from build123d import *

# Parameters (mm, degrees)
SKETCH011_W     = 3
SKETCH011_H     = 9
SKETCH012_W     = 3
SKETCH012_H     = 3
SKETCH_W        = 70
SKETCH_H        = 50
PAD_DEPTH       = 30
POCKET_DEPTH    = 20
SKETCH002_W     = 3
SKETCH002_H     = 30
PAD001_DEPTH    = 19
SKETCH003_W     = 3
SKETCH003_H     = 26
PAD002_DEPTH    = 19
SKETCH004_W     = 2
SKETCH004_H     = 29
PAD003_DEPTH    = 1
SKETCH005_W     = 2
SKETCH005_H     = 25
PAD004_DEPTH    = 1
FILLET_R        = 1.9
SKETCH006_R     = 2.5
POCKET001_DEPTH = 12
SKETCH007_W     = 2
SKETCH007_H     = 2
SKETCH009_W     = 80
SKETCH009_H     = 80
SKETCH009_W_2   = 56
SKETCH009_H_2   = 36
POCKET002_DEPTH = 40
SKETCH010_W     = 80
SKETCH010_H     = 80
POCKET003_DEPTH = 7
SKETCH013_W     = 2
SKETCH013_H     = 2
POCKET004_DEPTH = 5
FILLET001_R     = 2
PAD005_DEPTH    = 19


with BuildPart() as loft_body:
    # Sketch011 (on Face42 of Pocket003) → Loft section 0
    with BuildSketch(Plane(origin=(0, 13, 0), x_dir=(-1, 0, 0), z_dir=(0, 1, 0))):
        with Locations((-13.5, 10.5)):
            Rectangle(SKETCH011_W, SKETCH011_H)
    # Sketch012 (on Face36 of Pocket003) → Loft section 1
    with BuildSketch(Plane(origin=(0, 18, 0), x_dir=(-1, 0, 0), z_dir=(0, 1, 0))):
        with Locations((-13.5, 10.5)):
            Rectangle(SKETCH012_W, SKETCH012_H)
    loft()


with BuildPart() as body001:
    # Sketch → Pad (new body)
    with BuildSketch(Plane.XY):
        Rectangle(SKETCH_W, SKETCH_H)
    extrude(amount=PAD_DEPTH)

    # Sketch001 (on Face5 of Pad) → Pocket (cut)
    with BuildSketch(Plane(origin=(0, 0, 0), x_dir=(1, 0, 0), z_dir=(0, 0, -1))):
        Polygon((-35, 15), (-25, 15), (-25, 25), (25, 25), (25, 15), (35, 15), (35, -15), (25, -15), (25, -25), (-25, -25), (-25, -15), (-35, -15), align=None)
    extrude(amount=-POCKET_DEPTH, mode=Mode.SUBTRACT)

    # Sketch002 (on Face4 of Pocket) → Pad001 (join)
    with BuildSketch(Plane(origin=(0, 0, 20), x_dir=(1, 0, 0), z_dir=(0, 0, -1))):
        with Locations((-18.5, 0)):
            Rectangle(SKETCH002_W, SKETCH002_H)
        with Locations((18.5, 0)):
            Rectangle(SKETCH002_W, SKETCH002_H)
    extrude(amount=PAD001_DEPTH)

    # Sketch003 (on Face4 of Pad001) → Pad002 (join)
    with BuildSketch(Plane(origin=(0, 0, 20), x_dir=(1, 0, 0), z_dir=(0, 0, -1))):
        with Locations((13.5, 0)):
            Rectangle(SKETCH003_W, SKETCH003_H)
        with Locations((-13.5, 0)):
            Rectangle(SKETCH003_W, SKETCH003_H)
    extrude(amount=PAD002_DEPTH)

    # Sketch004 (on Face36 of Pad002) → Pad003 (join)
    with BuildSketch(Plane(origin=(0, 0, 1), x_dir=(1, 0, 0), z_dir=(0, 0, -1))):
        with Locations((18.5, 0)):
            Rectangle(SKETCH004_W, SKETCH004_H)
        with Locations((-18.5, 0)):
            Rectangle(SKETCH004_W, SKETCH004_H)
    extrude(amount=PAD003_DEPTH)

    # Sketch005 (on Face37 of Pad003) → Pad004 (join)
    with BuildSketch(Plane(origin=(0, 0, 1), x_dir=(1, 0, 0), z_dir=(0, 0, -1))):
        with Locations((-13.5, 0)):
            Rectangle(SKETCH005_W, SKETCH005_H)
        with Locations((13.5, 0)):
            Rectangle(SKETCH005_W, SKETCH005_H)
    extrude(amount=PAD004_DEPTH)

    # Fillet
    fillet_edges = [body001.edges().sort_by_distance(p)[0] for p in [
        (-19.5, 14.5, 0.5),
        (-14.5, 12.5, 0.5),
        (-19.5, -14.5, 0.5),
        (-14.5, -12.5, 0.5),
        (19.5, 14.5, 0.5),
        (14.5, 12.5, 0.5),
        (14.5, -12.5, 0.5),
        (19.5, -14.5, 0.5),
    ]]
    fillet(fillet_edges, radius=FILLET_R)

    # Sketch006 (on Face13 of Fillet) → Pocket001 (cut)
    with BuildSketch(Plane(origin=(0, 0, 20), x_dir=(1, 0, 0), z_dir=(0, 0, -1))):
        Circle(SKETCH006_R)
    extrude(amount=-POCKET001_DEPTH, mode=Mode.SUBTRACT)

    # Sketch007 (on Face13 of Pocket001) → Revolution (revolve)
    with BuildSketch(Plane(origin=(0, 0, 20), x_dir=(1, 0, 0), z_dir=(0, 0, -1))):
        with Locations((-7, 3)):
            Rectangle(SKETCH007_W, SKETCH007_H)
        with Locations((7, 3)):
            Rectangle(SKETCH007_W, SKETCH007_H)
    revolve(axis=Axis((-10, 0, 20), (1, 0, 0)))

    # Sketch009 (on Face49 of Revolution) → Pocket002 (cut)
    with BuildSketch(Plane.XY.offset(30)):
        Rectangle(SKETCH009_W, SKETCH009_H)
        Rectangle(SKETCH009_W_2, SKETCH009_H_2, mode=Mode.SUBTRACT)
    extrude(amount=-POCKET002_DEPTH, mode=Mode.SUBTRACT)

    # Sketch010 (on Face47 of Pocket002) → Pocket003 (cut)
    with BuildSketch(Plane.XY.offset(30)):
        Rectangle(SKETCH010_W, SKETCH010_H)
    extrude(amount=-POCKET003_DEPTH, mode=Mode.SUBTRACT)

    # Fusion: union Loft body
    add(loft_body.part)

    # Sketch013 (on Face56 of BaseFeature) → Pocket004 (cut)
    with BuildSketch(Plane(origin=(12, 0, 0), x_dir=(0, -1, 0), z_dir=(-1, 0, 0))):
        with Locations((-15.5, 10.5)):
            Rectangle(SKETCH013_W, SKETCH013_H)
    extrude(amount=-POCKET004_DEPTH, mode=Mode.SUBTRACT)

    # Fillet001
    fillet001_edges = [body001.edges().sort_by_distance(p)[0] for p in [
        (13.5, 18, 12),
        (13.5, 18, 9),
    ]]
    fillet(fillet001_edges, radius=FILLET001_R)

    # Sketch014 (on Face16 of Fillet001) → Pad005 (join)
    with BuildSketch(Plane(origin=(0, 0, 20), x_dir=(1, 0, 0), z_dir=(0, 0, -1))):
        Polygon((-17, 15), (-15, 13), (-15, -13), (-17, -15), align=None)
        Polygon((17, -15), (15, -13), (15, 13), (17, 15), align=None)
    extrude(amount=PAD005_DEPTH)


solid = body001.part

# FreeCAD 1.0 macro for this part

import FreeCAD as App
import Part
import Sketcher


def edges_at(feature, points):
    """Names of the edges that pass closest to the given points."""
    edges = feature.Shape.Edges
    near = lambda p: min(range(len(edges)), key=lambda i: edges[i].distToShape(Part.Vertex(*p))[0])
    return sorted({f"Edge{near(p) + 1}" for p in points})

doc = App.newDocument("Part")
body = doc.addObject("PartDesign::Body", "Body")

# Sketch on XZ plane
sketch1 = body.newObject("Sketcher::SketchObject", "Sketch")
sketch1.AttachmentSupport = (doc.getObject("XZ_Plane"), [""])
sketch1.MapMode = "FlatFace"
sketch1.AttachmentOffset = App.Placement(App.Vector(0, 0, -13), App.Rotation())
sketch1.addGeometry([
    Part.LineSegment(App.Vector(15, 15, 0), App.Vector(15, 6, 0)),
    Part.LineSegment(App.Vector(15, 6, 0), App.Vector(12, 6, 0)),
    Part.LineSegment(App.Vector(12, 6, 0), App.Vector(12, 15, 0)),
    Part.LineSegment(App.Vector(12, 15, 0), App.Vector(15, 15, 0)),
], False)
sketch1.addConstraint([
    Sketcher.Constraint("Coincident", 0, 2, 1, 1),
    Sketcher.Constraint("Coincident", 1, 2, 2, 1),
    Sketcher.Constraint("Coincident", 2, 2, 3, 1),
    Sketcher.Constraint("Coincident", 3, 2, 0, 1),
    Sketcher.Constraint("Vertical", 0),
    Sketcher.Constraint("Horizontal", 1),
    Sketcher.Constraint("Vertical", 2),
    Sketcher.Constraint("Horizontal", 3),
    Sketcher.Constraint("DistanceX", 1, 2, 1, 1, 3.0),
    Sketcher.Constraint("DistanceY", 0, 2, 0, 1, 9.0),
    Sketcher.Constraint("DistanceX", -1, 1, 0, 2, 15.0),
    Sketcher.Constraint("DistanceY", -1, 1, 0, 2, 6.0),
])

# Sketch on XZ plane
sketch2 = body.newObject("Sketcher::SketchObject", "Sketch001")
sketch2.AttachmentSupport = (doc.getObject("XZ_Plane"), [""])
sketch2.MapMode = "FlatFace"
sketch2.AttachmentOffset = App.Placement(App.Vector(0, 0, -18), App.Rotation())
sketch2.addGeometry([
    Part.LineSegment(App.Vector(15, 12, 0), App.Vector(15, 9, 0)),
    Part.LineSegment(App.Vector(15, 9, 0), App.Vector(12, 9, 0)),
    Part.LineSegment(App.Vector(12, 9, 0), App.Vector(12, 12, 0)),
    Part.LineSegment(App.Vector(12, 12, 0), App.Vector(15, 12, 0)),
], False)
sketch2.addConstraint([
    Sketcher.Constraint("Coincident", 0, 2, 1, 1),
    Sketcher.Constraint("Coincident", 1, 2, 2, 1),
    Sketcher.Constraint("Coincident", 2, 2, 3, 1),
    Sketcher.Constraint("Coincident", 3, 2, 0, 1),
    Sketcher.Constraint("Vertical", 0),
    Sketcher.Constraint("Horizontal", 1),
    Sketcher.Constraint("Vertical", 2),
    Sketcher.Constraint("Horizontal", 3),
    Sketcher.Constraint("Equal", 3, 0),
    Sketcher.Constraint("DistanceX", 1, 2, 1, 1, 3.0),
    Sketcher.Constraint("DistanceX", -1, 1, 0, 2, 15.0),
    Sketcher.Constraint("DistanceY", -1, 1, 0, 2, 9.0),
])

additiveloft = body.newObject("PartDesign::AdditiveLoft", "AdditiveLoft")
additiveloft.Profile = sketch1
additiveloft.Sections = [sketch2]
body2 = doc.addObject("PartDesign::Body", "Body001")

# Sketch on XY plane
sketch3 = body2.newObject("Sketcher::SketchObject", "Sketch002")
sketch3.AttachmentSupport = (doc.getObject("XY_Plane001"), [""])
sketch3.MapMode = "FlatFace"
sketch3.addGeometry([
    Part.LineSegment(App.Vector(-35, 25, 0), App.Vector(-35, -25, 0)),
    Part.LineSegment(App.Vector(-35, -25, 0), App.Vector(35, -25, 0)),
    Part.LineSegment(App.Vector(35, -25, 0), App.Vector(35, 25, 0)),
    Part.LineSegment(App.Vector(35, 25, 0), App.Vector(-35, 25, 0)),
], False)
sketch3.addConstraint([
    Sketcher.Constraint("Coincident", 0, 2, 1, 1),
    Sketcher.Constraint("Coincident", 1, 2, 2, 1),
    Sketcher.Constraint("Coincident", 2, 2, 3, 1),
    Sketcher.Constraint("Coincident", 3, 2, 0, 1),
    Sketcher.Constraint("Vertical", 0),
    Sketcher.Constraint("Horizontal", 1),
    Sketcher.Constraint("Vertical", 2),
    Sketcher.Constraint("Horizontal", 3),
    Sketcher.Constraint("Symmetric", 0, 2, 2, 2, -1, 1),
    Sketcher.Constraint("DistanceX", 1, 1, 1, 2, 70.0),
    Sketcher.Constraint("DistanceY", 0, 2, 0, 1, 50.0),
])
pad1 = body2.newObject("PartDesign::Pad", "Pad")
pad1.Profile = sketch3
pad1.Length = 30

# Sketch on XY plane
sketch4 = body2.newObject("Sketcher::SketchObject", "Sketch003")
sketch4.AttachmentSupport = (doc.getObject("XY_Plane001"), [""])
sketch4.MapMode = "FlatFace"
sketch4.addGeometry([
    Part.LineSegment(App.Vector(-25, -15, 0), App.Vector(-35, -15, 0)),  # 0
    Part.LineSegment(App.Vector(-35, -15, 0), App.Vector(-35, 15, 0)),  # 1
    Part.LineSegment(App.Vector(-35, 15, 0), App.Vector(-25, 15, 0)),  # 2
    Part.LineSegment(App.Vector(-25, 15, 0), App.Vector(-25, 25, 0)),  # 3
    Part.LineSegment(App.Vector(-25, 25, 0), App.Vector(25, 25, 0)),  # 4
    Part.LineSegment(App.Vector(25, 25, 0), App.Vector(25, 15, 0)),  # 5
    Part.LineSegment(App.Vector(25, 15, 0), App.Vector(35, 15, 0)),  # 6
    Part.LineSegment(App.Vector(35, 15, 0), App.Vector(35, -15, 0)),  # 7
    Part.LineSegment(App.Vector(35, -15, 0), App.Vector(25, -15, 0)),  # 8
    Part.LineSegment(App.Vector(25, -15, 0), App.Vector(25, -25, 0)),  # 9
    Part.LineSegment(App.Vector(25, -25, 0), App.Vector(-25, -25, 0)),  # 10
    Part.LineSegment(App.Vector(-25, -25, 0), App.Vector(-25, -15, 0)),  # 11
], False)
sketch4.addConstraint([
    Sketcher.Constraint("Coincident", 0, 2, 1, 1),
    Sketcher.Constraint("Coincident", 1, 2, 2, 1),
    Sketcher.Constraint("Coincident", 2, 2, 3, 1),
    Sketcher.Constraint("Coincident", 3, 2, 4, 1),
    Sketcher.Constraint("Coincident", 4, 2, 5, 1),
    Sketcher.Constraint("Coincident", 5, 2, 6, 1),
    Sketcher.Constraint("Coincident", 6, 2, 7, 1),
    Sketcher.Constraint("Coincident", 7, 2, 8, 1),
    Sketcher.Constraint("Coincident", 8, 2, 9, 1),
    Sketcher.Constraint("Coincident", 9, 2, 10, 1),
    Sketcher.Constraint("Coincident", 10, 2, 11, 1),
    Sketcher.Constraint("Coincident", 11, 2, 0, 1),
    Sketcher.Constraint("Horizontal", 0),
    Sketcher.Constraint("Vertical", 1),
    Sketcher.Constraint("Horizontal", 2),
    Sketcher.Constraint("Vertical", 3),
    Sketcher.Constraint("Horizontal", 4),
    Sketcher.Constraint("Vertical", 5),
    Sketcher.Constraint("Horizontal", 6),
    Sketcher.Constraint("Vertical", 7),
    Sketcher.Constraint("Horizontal", 8),
    Sketcher.Constraint("Vertical", 9),
    Sketcher.Constraint("Horizontal", 10),
    Sketcher.Constraint("Vertical", 11),
    Sketcher.Constraint("Symmetric", 0, 2, 6, 2, -1, 1),
    Sketcher.Constraint("Symmetric", 2, 2, 8, 2, -1, 1),
    Sketcher.Constraint("Symmetric", 4, 2, 10, 2, -1, 1),
    Sketcher.Constraint("Symmetric", 2, 2, 5, 2, -2),
    Sketcher.Constraint("Equal", 8, 3),
    Sketcher.Constraint("DistanceX", 0, 2, 0, 1, 10.0),
    Sketcher.Constraint("DistanceX", 4, 1, 4, 2, 50.0),
    Sketcher.Constraint("DistanceY", 1, 1, 1, 2, 30.0),
])
pocket1 = body2.newObject("PartDesign::Pocket", "Pocket")
pocket1.Profile = sketch4
pocket1.Length = 20
pocket1.Reversed = True

# Sketch on XY plane
sketch5 = body2.newObject("Sketcher::SketchObject", "Sketch004")
sketch5.AttachmentSupport = (doc.getObject("XY_Plane001"), [""])
sketch5.MapMode = "FlatFace"
sketch5.AttachmentOffset = App.Placement(App.Vector(0, 0, 20), App.Rotation())
sketch5.addGeometry([
    Part.LineSegment(App.Vector(-20, -15, 0), App.Vector(-20, 15, 0)),  # 0
    Part.LineSegment(App.Vector(-20, 15, 0), App.Vector(-17, 15, 0)),  # 1
    Part.LineSegment(App.Vector(-17, 15, 0), App.Vector(-17, -15, 0)),  # 2
    Part.LineSegment(App.Vector(-17, -15, 0), App.Vector(-20, -15, 0)),  # 3
    Part.LineSegment(App.Vector(17, -15, 0), App.Vector(17, 15, 0)),  # 4
    Part.LineSegment(App.Vector(17, 15, 0), App.Vector(20, 15, 0)),  # 5
    Part.LineSegment(App.Vector(20, 15, 0), App.Vector(20, -15, 0)),  # 6
    Part.LineSegment(App.Vector(20, -15, 0), App.Vector(17, -15, 0)),  # 7
], False)
sketch5.addConstraint([
    Sketcher.Constraint("Coincident", 0, 2, 1, 1),
    Sketcher.Constraint("Coincident", 1, 2, 2, 1),
    Sketcher.Constraint("Coincident", 2, 2, 3, 1),
    Sketcher.Constraint("Coincident", 3, 2, 0, 1),
    Sketcher.Constraint("Coincident", 4, 2, 5, 1),
    Sketcher.Constraint("Coincident", 5, 2, 6, 1),
    Sketcher.Constraint("Coincident", 6, 2, 7, 1),
    Sketcher.Constraint("Coincident", 7, 2, 4, 1),
    Sketcher.Constraint("Vertical", 0),
    Sketcher.Constraint("Horizontal", 1),
    Sketcher.Constraint("Vertical", 2),
    Sketcher.Constraint("Horizontal", 3),
    Sketcher.Constraint("Vertical", 4),
    Sketcher.Constraint("Horizontal", 5),
    Sketcher.Constraint("Vertical", 6),
    Sketcher.Constraint("Horizontal", 7),
    Sketcher.Constraint("Symmetric", 2, 2, 4, 2, -1, 1),
    Sketcher.Constraint("Symmetric", 0, 2, 6, 2, -1, 1),
    Sketcher.Constraint("Horizontal", 1, 2, 4, 2),
    Sketcher.Constraint("DistanceX", 1, 1, 1, 2, 3.0),
    Sketcher.Constraint("DistanceY", 0, 1, 0, 2, 30.0),
    Sketcher.Constraint("DistanceX", 0, 2, -1, 1, 20.0),
])
pad2 = body2.newObject("PartDesign::Pad", "Pad001")
pad2.Profile = sketch5
pad2.Length = 19
pad2.Reversed = True

# Sketch on XY plane
sketch6 = body2.newObject("Sketcher::SketchObject", "Sketch005")
sketch6.AttachmentSupport = (doc.getObject("XY_Plane001"), [""])
sketch6.MapMode = "FlatFace"
sketch6.AttachmentOffset = App.Placement(App.Vector(0, 0, 20), App.Rotation())
sketch6.addGeometry([
    Part.LineSegment(App.Vector(12, -13, 0), App.Vector(12, 13, 0)),  # 0
    Part.LineSegment(App.Vector(12, 13, 0), App.Vector(15, 13, 0)),  # 1
    Part.LineSegment(App.Vector(15, 13, 0), App.Vector(15, -13, 0)),  # 2
    Part.LineSegment(App.Vector(15, -13, 0), App.Vector(12, -13, 0)),  # 3
    Part.LineSegment(App.Vector(-15, -13, 0), App.Vector(-15, 13, 0)),  # 4
    Part.LineSegment(App.Vector(-15, 13, 0), App.Vector(-12, 13, 0)),  # 5
    Part.LineSegment(App.Vector(-12, 13, 0), App.Vector(-12, -13, 0)),  # 6
    Part.LineSegment(App.Vector(-12, -13, 0), App.Vector(-15, -13, 0)),  # 7
], False)
sketch6.addConstraint([
    Sketcher.Constraint("Coincident", 0, 2, 1, 1),
    Sketcher.Constraint("Coincident", 1, 2, 2, 1),
    Sketcher.Constraint("Coincident", 2, 2, 3, 1),
    Sketcher.Constraint("Coincident", 3, 2, 0, 1),
    Sketcher.Constraint("Coincident", 4, 2, 5, 1),
    Sketcher.Constraint("Coincident", 5, 2, 6, 1),
    Sketcher.Constraint("Coincident", 6, 2, 7, 1),
    Sketcher.Constraint("Coincident", 7, 2, 4, 1),
    Sketcher.Constraint("Vertical", 0),
    Sketcher.Constraint("Horizontal", 1),
    Sketcher.Constraint("Vertical", 2),
    Sketcher.Constraint("Horizontal", 3),
    Sketcher.Constraint("Vertical", 4),
    Sketcher.Constraint("Horizontal", 5),
    Sketcher.Constraint("Vertical", 6),
    Sketcher.Constraint("Horizontal", 7),
    Sketcher.Constraint("Symmetric", 2, 2, 4, 2, -1, 1),
    Sketcher.Constraint("Symmetric", 0, 2, 6, 2, -1, 1),
    Sketcher.Constraint("Horizontal", 1, 2, 4, 2),
    Sketcher.Constraint("DistanceX", 1, 1, 1, 2, 3.0),
    Sketcher.Constraint("DistanceY", 0, 1, 0, 2, 26.0),
    Sketcher.Constraint("DistanceX", -1, 1, 0, 2, 12.0),
])
pad3 = body2.newObject("PartDesign::Pad", "Pad002")
pad3.Profile = sketch6
pad3.Length = 19
pad3.Reversed = True

# Sketch on XY plane
sketch7 = body2.newObject("Sketcher::SketchObject", "Sketch006")
sketch7.AttachmentSupport = (doc.getObject("XY_Plane001"), [""])
sketch7.MapMode = "FlatFace"
sketch7.AttachmentOffset = App.Placement(App.Vector(0, 0, 1), App.Rotation())
sketch7.addGeometry([
    Part.LineSegment(App.Vector(17.5, -14.5, 0), App.Vector(17.5, 14.5, 0)),  # 0
    Part.LineSegment(App.Vector(17.5, 14.5, 0), App.Vector(19.5, 14.5, 0)),  # 1
    Part.LineSegment(App.Vector(19.5, 14.5, 0), App.Vector(19.5, -14.5, 0)),  # 2
    Part.LineSegment(App.Vector(19.5, -14.5, 0), App.Vector(17.5, -14.5, 0)),  # 3
    Part.LineSegment(App.Vector(-19.5, -14.5, 0), App.Vector(-19.5, 14.5, 0)),  # 4
    Part.LineSegment(App.Vector(-19.5, 14.5, 0), App.Vector(-17.5, 14.5, 0)),  # 5
    Part.LineSegment(App.Vector(-17.5, 14.5, 0), App.Vector(-17.5, -14.5, 0)),  # 6
    Part.LineSegment(App.Vector(-17.5, -14.5, 0), App.Vector(-19.5, -14.5, 0)),  # 7
], False)
sketch7.addConstraint([
    Sketcher.Constraint("Coincident", 0, 2, 1, 1),
    Sketcher.Constraint("Coincident", 1, 2, 2, 1),
    Sketcher.Constraint("Coincident", 2, 2, 3, 1),
    Sketcher.Constraint("Coincident", 3, 2, 0, 1),
    Sketcher.Constraint("Coincident", 4, 2, 5, 1),
    Sketcher.Constraint("Coincident", 5, 2, 6, 1),
    Sketcher.Constraint("Coincident", 6, 2, 7, 1),
    Sketcher.Constraint("Coincident", 7, 2, 4, 1),
    Sketcher.Constraint("Vertical", 0),
    Sketcher.Constraint("Horizontal", 1),
    Sketcher.Constraint("Vertical", 2),
    Sketcher.Constraint("Horizontal", 3),
    Sketcher.Constraint("Vertical", 4),
    Sketcher.Constraint("Horizontal", 5),
    Sketcher.Constraint("Vertical", 6),
    Sketcher.Constraint("Horizontal", 7),
    Sketcher.Constraint("Symmetric", 2, 2, 4, 2, -1, 1),
    Sketcher.Constraint("Symmetric", 0, 2, 6, 2, -1, 1),
    Sketcher.Constraint("Horizontal", 1, 2, 4, 2),
    Sketcher.Constraint("DistanceX", 1, 1, 1, 2, 2.0),
    Sketcher.Constraint("DistanceY", 0, 1, 0, 2, 29.0),
    Sketcher.Constraint("DistanceX", 4, 2, 0, 2, 37.0),
])
pad4 = body2.newObject("PartDesign::Pad", "Pad003")
pad4.Profile = sketch7
pad4.Length = 1
pad4.Reversed = True

# Sketch on XY plane
sketch8 = body2.newObject("Sketcher::SketchObject", "Sketch007")
sketch8.AttachmentSupport = (doc.getObject("XY_Plane001"), [""])
sketch8.MapMode = "FlatFace"
sketch8.AttachmentOffset = App.Placement(App.Vector(0, 0, 1), App.Rotation())
sketch8.addGeometry([
    Part.LineSegment(App.Vector(-14.5, -12.5, 0), App.Vector(-14.5, 12.5, 0)),  # 0
    Part.LineSegment(App.Vector(-14.5, 12.5, 0), App.Vector(-12.5, 12.5, 0)),  # 1
    Part.LineSegment(App.Vector(-12.5, 12.5, 0), App.Vector(-12.5, -12.5, 0)),  # 2
    Part.LineSegment(App.Vector(-12.5, -12.5, 0), App.Vector(-14.5, -12.5, 0)),  # 3
    Part.LineSegment(App.Vector(12.5, -12.5, 0), App.Vector(12.5, 12.5, 0)),  # 4
    Part.LineSegment(App.Vector(12.5, 12.5, 0), App.Vector(14.5, 12.5, 0)),  # 5
    Part.LineSegment(App.Vector(14.5, 12.5, 0), App.Vector(14.5, -12.5, 0)),  # 6
    Part.LineSegment(App.Vector(14.5, -12.5, 0), App.Vector(12.5, -12.5, 0)),  # 7
], False)
sketch8.addConstraint([
    Sketcher.Constraint("Coincident", 0, 2, 1, 1),
    Sketcher.Constraint("Coincident", 1, 2, 2, 1),
    Sketcher.Constraint("Coincident", 2, 2, 3, 1),
    Sketcher.Constraint("Coincident", 3, 2, 0, 1),
    Sketcher.Constraint("Coincident", 4, 2, 5, 1),
    Sketcher.Constraint("Coincident", 5, 2, 6, 1),
    Sketcher.Constraint("Coincident", 6, 2, 7, 1),
    Sketcher.Constraint("Coincident", 7, 2, 4, 1),
    Sketcher.Constraint("Vertical", 0),
    Sketcher.Constraint("Horizontal", 1),
    Sketcher.Constraint("Vertical", 2),
    Sketcher.Constraint("Horizontal", 3),
    Sketcher.Constraint("Vertical", 4),
    Sketcher.Constraint("Horizontal", 5),
    Sketcher.Constraint("Vertical", 6),
    Sketcher.Constraint("Horizontal", 7),
    Sketcher.Constraint("Symmetric", 2, 2, 4, 2, -1, 1),
    Sketcher.Constraint("Symmetric", 0, 2, 6, 2, -1, 1),
    Sketcher.Constraint("Horizontal", 1, 2, 4, 2),
    Sketcher.Constraint("DistanceX", 1, 1, 1, 2, 2.0),
    Sketcher.Constraint("DistanceY", 0, 1, 0, 2, 25.0),
    Sketcher.Constraint("DistanceX", 1, 2, 4, 2, 25.0),
])
pad5 = body2.newObject("PartDesign::Pad", "Pad004")
pad5.Profile = sketch8
pad5.Length = 1
pad5.Reversed = True
doc.recompute()

fillet = body2.newObject("PartDesign::Fillet", "Fillet")
fillet.Base = (pad5, edges_at(pad5, [
    (-19.5, 14.5, 0.5),
    (-14.5, 12.5, 0.5),
    (-19.5, -14.5, 0.5),
    (-14.5, -12.5, 0.5),
    (19.5, 14.5, 0.5),
    (14.5, 12.5, 0.5),
    (14.5, -12.5, 0.5),
    (19.5, -14.5, 0.5),
]))
fillet.Radius = 1.9

# Sketch on XY plane
sketch9 = body2.newObject("Sketcher::SketchObject", "Sketch008")
sketch9.AttachmentSupport = (doc.getObject("XY_Plane001"), [""])
sketch9.MapMode = "FlatFace"
sketch9.AttachmentOffset = App.Placement(App.Vector(0, 0, 20), App.Rotation())
sketch9.addGeometry(Part.Circle(App.Vector(0, 0, 0), App.Vector(0, 0, 1), 2.5), False)
sketch9.addConstraint([
    Sketcher.Constraint("Coincident", 0, 3, -1, 1),
    Sketcher.Constraint("Diameter", 0, 5.0),
])
pocket2 = body2.newObject("PartDesign::Pocket", "Pocket001")
pocket2.Profile = sketch9
pocket2.Length = 12
pocket2.Reversed = True

# Sketch on XY plane
sketch10 = body2.newObject("Sketcher::SketchObject", "Sketch009")
sketch10.AttachmentSupport = (doc.getObject("XY_Plane001"), [""])
sketch10.MapMode = "FlatFace"
sketch10.AttachmentOffset = App.Placement(App.Vector(0, 0, 20), App.Rotation())
sketch10.addGeometry([
    Part.LineSegment(App.Vector(-8, -4, 0), App.Vector(-8, -2, 0)),  # 0
    Part.LineSegment(App.Vector(-8, -2, 0), App.Vector(-6, -2, 0)),  # 1
    Part.LineSegment(App.Vector(-6, -2, 0), App.Vector(-6, -4, 0)),  # 2
    Part.LineSegment(App.Vector(-6, -4, 0), App.Vector(-8, -4, 0)),  # 3
    Part.LineSegment(App.Vector(6, -4, 0), App.Vector(6, -2, 0)),  # 4
    Part.LineSegment(App.Vector(6, -2, 0), App.Vector(8, -2, 0)),  # 5
    Part.LineSegment(App.Vector(8, -2, 0), App.Vector(8, -4, 0)),  # 6
    Part.LineSegment(App.Vector(8, -4, 0), App.Vector(6, -4, 0)),  # 7
], False)
sketch10.addConstraint([
    Sketcher.Constraint("Coincident", 0, 2, 1, 1),
    Sketcher.Constraint("Coincident", 1, 2, 2, 1),
    Sketcher.Constraint("Coincident", 2, 2, 3, 1),
    Sketcher.Constraint("Coincident", 3, 2, 0, 1),
    Sketcher.Constraint("Coincident", 4, 2, 5, 1),
    Sketcher.Constraint("Coincident", 5, 2, 6, 1),
    Sketcher.Constraint("Coincident", 6, 2, 7, 1),
    Sketcher.Constraint("Coincident", 7, 2, 4, 1),
    Sketcher.Constraint("Vertical", 0),
    Sketcher.Constraint("Horizontal", 1),
    Sketcher.Constraint("Vertical", 2),
    Sketcher.Constraint("Horizontal", 3),
    Sketcher.Constraint("Vertical", 4),
    Sketcher.Constraint("Horizontal", 5),
    Sketcher.Constraint("Vertical", 6),
    Sketcher.Constraint("Horizontal", 7),
    Sketcher.Constraint("Symmetric", 1, 2, 4, 2, -2),
    Sketcher.Constraint("Symmetric", 3, 2, 6, 2, -2),
    Sketcher.Constraint("Equal", 7, 0),
    Sketcher.Constraint("DistanceX", 1, 1, 1, 2, 2.0),
    Sketcher.Constraint("DistanceX", 0, 2, -1, 1, 8.0),
    Sketcher.Constraint("DistanceY", 0, 2, -1, 1, 2.0),
])
revolution = body2.newObject("PartDesign::Revolution", "Revolution")
revolution.Profile = sketch10
revolution.ReferenceAxis = (sketch10, ["H_Axis"])
revolution.Angle = 360

# Sketch on XY plane
sketch11 = body2.newObject("Sketcher::SketchObject", "Sketch010")
sketch11.AttachmentSupport = (doc.getObject("XY_Plane001"), [""])
sketch11.MapMode = "FlatFace"
sketch11.AttachmentOffset = App.Placement(App.Vector(0, 0, 30), App.Rotation())
sketch11.addGeometry([
    Part.LineSegment(App.Vector(-40, 40, 0), App.Vector(-40, -40, 0)),  # 0
    Part.LineSegment(App.Vector(-40, -40, 0), App.Vector(40, -40, 0)),  # 1
    Part.LineSegment(App.Vector(40, -40, 0), App.Vector(40, 40, 0)),  # 2
    Part.LineSegment(App.Vector(40, 40, 0), App.Vector(-40, 40, 0)),  # 3
    Part.LineSegment(App.Vector(28, -18, 0), App.Vector(-28, -18, 0)),  # 4
    Part.LineSegment(App.Vector(-28, -18, 0), App.Vector(-28, 18, 0)),  # 5
    Part.LineSegment(App.Vector(-28, 18, 0), App.Vector(28, 18, 0)),  # 6
    Part.LineSegment(App.Vector(28, 18, 0), App.Vector(28, -18, 0)),  # 7
], False)
sketch11.addConstraint([
    Sketcher.Constraint("Coincident", 0, 2, 1, 1),
    Sketcher.Constraint("Coincident", 1, 2, 2, 1),
    Sketcher.Constraint("Coincident", 2, 2, 3, 1),
    Sketcher.Constraint("Coincident", 3, 2, 0, 1),
    Sketcher.Constraint("Coincident", 4, 2, 5, 1),
    Sketcher.Constraint("Coincident", 5, 2, 6, 1),
    Sketcher.Constraint("Coincident", 6, 2, 7, 1),
    Sketcher.Constraint("Coincident", 7, 2, 4, 1),
    Sketcher.Constraint("Vertical", 0),
    Sketcher.Constraint("Horizontal", 1),
    Sketcher.Constraint("Vertical", 2),
    Sketcher.Constraint("Horizontal", 3),
    Sketcher.Constraint("Horizontal", 4),
    Sketcher.Constraint("Vertical", 5),
    Sketcher.Constraint("Horizontal", 6),
    Sketcher.Constraint("Vertical", 7),
    Sketcher.Constraint("Symmetric", 0, 2, 2, 2, -1, 1),
    Sketcher.Constraint("Symmetric", 4, 2, 6, 2, -1, 1),
    Sketcher.Constraint("Equal", 3, 0),
    Sketcher.Constraint("DistanceX", 1, 1, 1, 2, 80.0),
    Sketcher.Constraint("DistanceX", 4, 2, 4, 1, 56.0),
    Sketcher.Constraint("DistanceY", 5, 1, 5, 2, 36.0),
])
pocket3 = body2.newObject("PartDesign::Pocket", "Pocket002")
pocket3.Profile = sketch11
pocket3.Length = 40

# Sketch on XY plane
sketch12 = body2.newObject("Sketcher::SketchObject", "Sketch011")
sketch12.AttachmentSupport = (doc.getObject("XY_Plane001"), [""])
sketch12.MapMode = "FlatFace"
sketch12.AttachmentOffset = App.Placement(App.Vector(0, 0, 30), App.Rotation())
sketch12.addGeometry([
    Part.LineSegment(App.Vector(-40, 40, 0), App.Vector(-40, -40, 0)),
    Part.LineSegment(App.Vector(-40, -40, 0), App.Vector(40, -40, 0)),
    Part.LineSegment(App.Vector(40, -40, 0), App.Vector(40, 40, 0)),
    Part.LineSegment(App.Vector(40, 40, 0), App.Vector(-40, 40, 0)),
], False)
sketch12.addConstraint([
    Sketcher.Constraint("Coincident", 0, 2, 1, 1),
    Sketcher.Constraint("Coincident", 1, 2, 2, 1),
    Sketcher.Constraint("Coincident", 2, 2, 3, 1),
    Sketcher.Constraint("Coincident", 3, 2, 0, 1),
    Sketcher.Constraint("Vertical", 0),
    Sketcher.Constraint("Horizontal", 1),
    Sketcher.Constraint("Vertical", 2),
    Sketcher.Constraint("Horizontal", 3),
    Sketcher.Constraint("Symmetric", 0, 2, 2, 2, -1, 1),
    Sketcher.Constraint("Equal", 3, 0),
    Sketcher.Constraint("DistanceX", 1, 1, 1, 2, 80.0),
])
pocket4 = body2.newObject("PartDesign::Pocket", "Pocket003")
pocket4.Profile = sketch12
pocket4.Length = 7
doc.recompute()

boolean = body2.newObject("PartDesign::Boolean", "Boolean")
boolean.Type = "Fuse"
boolean.addObjects([body])

# Sketch on YZ plane
sketch13 = body2.newObject("Sketcher::SketchObject", "Sketch012")
sketch13.AttachmentSupport = (doc.getObject("YZ_Plane001"), [""])
sketch13.MapMode = "FlatFace"
sketch13.AttachmentOffset = App.Placement(App.Vector(0, 0, 12), App.Rotation())
sketch13.addGeometry([
    Part.LineSegment(App.Vector(16.5, 11.5, 0), App.Vector(16.5, 9.5, 0)),
    Part.LineSegment(App.Vector(16.5, 9.5, 0), App.Vector(14.5, 9.5, 0)),
    Part.LineSegment(App.Vector(14.5, 9.5, 0), App.Vector(14.5, 11.5, 0)),
    Part.LineSegment(App.Vector(14.5, 11.5, 0), App.Vector(16.5, 11.5, 0)),
], False)
sketch13.addConstraint([
    Sketcher.Constraint("Coincident", 0, 2, 1, 1),
    Sketcher.Constraint("Coincident", 1, 2, 2, 1),
    Sketcher.Constraint("Coincident", 2, 2, 3, 1),
    Sketcher.Constraint("Coincident", 3, 2, 0, 1),
    Sketcher.Constraint("Vertical", 0),
    Sketcher.Constraint("Horizontal", 1),
    Sketcher.Constraint("Vertical", 2),
    Sketcher.Constraint("Horizontal", 3),
    Sketcher.Constraint("Equal", 3, 0),
    Sketcher.Constraint("DistanceX", 1, 2, 1, 1, 2.0),
    Sketcher.Constraint("DistanceX", -1, 1, 0, 2, 16.5),
    Sketcher.Constraint("DistanceY", -1, 1, 0, 2, 9.5),
])
pocket5 = body2.newObject("PartDesign::Pocket", "Pocket004")
pocket5.Profile = sketch13
pocket5.Length = 5
pocket5.Reversed = True
doc.recompute()

fillet2 = body2.newObject("PartDesign::Fillet", "Fillet001")
fillet2.Base = (pocket5, edges_at(pocket5, [(13.5, 18, 12), (13.5, 18, 9)]))
fillet2.Radius = 2

# Sketch on XY plane
sketch14 = body2.newObject("Sketcher::SketchObject", "Sketch013")
sketch14.AttachmentSupport = (doc.getObject("XY_Plane001"), [""])
sketch14.MapMode = "FlatFace"
sketch14.AttachmentOffset = App.Placement(App.Vector(0, 0, 20), App.Rotation())
sketch14.addGeometry([
    Part.LineSegment(App.Vector(-15, -13, 0), App.Vector(-17, -15, 0)),  # 0
    Part.LineSegment(App.Vector(-17, -15, 0), App.Vector(-17, 15, 0)),  # 1
    Part.LineSegment(App.Vector(-17, 15, 0), App.Vector(-15, 13, 0)),  # 2
    Part.LineSegment(App.Vector(-15, 13, 0), App.Vector(-15, -13, 0)),  # 3
    Part.LineSegment(App.Vector(15, 13, 0), App.Vector(17, 15, 0)),  # 4
    Part.LineSegment(App.Vector(17, 15, 0), App.Vector(17, -15, 0)),  # 5
    Part.LineSegment(App.Vector(17, -15, 0), App.Vector(15, -13, 0)),  # 6
    Part.LineSegment(App.Vector(15, -13, 0), App.Vector(15, 13, 0)),  # 7
], False)
sketch14.addConstraint([
    Sketcher.Constraint("Coincident", 0, 2, 1, 1),
    Sketcher.Constraint("Coincident", 1, 2, 2, 1),
    Sketcher.Constraint("Coincident", 2, 2, 3, 1),
    Sketcher.Constraint("Coincident", 3, 2, 0, 1),
    Sketcher.Constraint("Coincident", 4, 2, 5, 1),
    Sketcher.Constraint("Coincident", 5, 2, 6, 1),
    Sketcher.Constraint("Coincident", 6, 2, 7, 1),
    Sketcher.Constraint("Coincident", 7, 2, 4, 1),
    Sketcher.Constraint("Vertical", 1),
    Sketcher.Constraint("Vertical", 3),
    Sketcher.Constraint("Vertical", 5),
    Sketcher.Constraint("Vertical", 7),
    Sketcher.Constraint("Symmetric", 0, 2, 4, 2, -1, 1),
    Sketcher.Constraint("Symmetric", 2, 2, 6, 2, -1, 1),
    Sketcher.Constraint("Perpendicular", 0, 2),
    Sketcher.Constraint("Perpendicular", 2, 4),
    Sketcher.Constraint("Perpendicular", 4, 6),
    Sketcher.Constraint("Horizontal", 1, 2, 4, 2),
    Sketcher.Constraint("Horizontal", 3, 2, 6, 2),
    Sketcher.Constraint("DistanceY", 1, 1, 1, 2, 30.0),
    Sketcher.Constraint("DistanceY", 3, 2, 3, 1, 26.0),
    Sketcher.Constraint("DistanceX", 0, 2, -1, 1, 17.0),
])
pad6 = body2.newObject("PartDesign::Pad", "Pad005")
pad6.Profile = sketch14
pad6.Length = 19
pad6.Reversed = True

doc.recompute()
